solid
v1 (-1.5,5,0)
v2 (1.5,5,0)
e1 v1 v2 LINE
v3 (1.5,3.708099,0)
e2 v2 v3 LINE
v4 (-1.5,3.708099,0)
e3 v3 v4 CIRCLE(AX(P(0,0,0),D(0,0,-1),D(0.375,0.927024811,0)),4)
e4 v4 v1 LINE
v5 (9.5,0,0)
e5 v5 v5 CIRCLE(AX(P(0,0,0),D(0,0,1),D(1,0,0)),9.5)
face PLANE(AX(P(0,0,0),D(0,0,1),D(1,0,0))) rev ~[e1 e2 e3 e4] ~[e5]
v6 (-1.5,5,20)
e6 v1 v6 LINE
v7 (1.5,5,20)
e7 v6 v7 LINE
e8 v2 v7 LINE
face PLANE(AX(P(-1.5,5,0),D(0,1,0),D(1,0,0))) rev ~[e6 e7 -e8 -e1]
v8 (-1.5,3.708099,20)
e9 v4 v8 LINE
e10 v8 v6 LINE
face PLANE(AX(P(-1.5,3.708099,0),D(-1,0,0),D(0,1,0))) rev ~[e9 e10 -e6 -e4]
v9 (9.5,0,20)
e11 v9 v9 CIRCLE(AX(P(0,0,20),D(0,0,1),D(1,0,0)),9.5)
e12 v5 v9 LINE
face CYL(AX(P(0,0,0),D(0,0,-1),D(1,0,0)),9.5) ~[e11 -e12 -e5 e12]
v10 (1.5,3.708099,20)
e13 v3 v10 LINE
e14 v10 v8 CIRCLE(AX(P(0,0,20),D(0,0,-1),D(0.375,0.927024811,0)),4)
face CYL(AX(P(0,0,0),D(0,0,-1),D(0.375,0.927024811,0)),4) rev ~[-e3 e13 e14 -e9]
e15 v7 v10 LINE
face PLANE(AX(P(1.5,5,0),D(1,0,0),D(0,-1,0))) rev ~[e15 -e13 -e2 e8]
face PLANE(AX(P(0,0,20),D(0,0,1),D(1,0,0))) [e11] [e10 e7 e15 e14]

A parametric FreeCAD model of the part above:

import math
import FreeCAD as App
import Part
import Sketcher

V = App.Vector

doc = App.newDocument("Part")
params = doc.addObject("Spreadsheet::Sheet", "Params")
for row, (alias, value) in enumerate([
    ("sketch1_diameter", "19 mm"),
    ("sketch1_radius", "4 mm"),
    ("sketch1_width", "3 mm"),
    ("pad1_length", "20 mm"),
], start=1):
    params.set(f"A{row}", alias)
    params.set(f"B{row}", "=" + value)
    params.setAlias(f"B{row}", alias)

body = doc.addObject("PartDesign::Body", "Body")

# Sketch on XY plane
sketch1 = body.newObject("Sketcher::SketchObject", "Sketch")
sketch1.AttachmentSupport = (doc.getObject("XY_Plane"), [""])
sketch1.MapMode = "FlatFace"
sketch1.addGeometry([
    Part.Circle(V(0, 0, 0), V(0, 0, 1), 9.5),  # 0
    Part.ArcOfCircle(Part.Circle(V(0, 0, 0), V(0, 0, 1), 4), math.radians(112), math.radians(428)),  # 1
    Part.LineSegment(V(-1.5, 3.7, 0), V(-1.5, 5, 0)),  # 2
    Part.LineSegment(V(-1.5, 5, 0), V(1.5, 5, 0)),  # 3
    Part.LineSegment(V(1.5, 5, 0), V(1.5, 3.7, 0)),  # 4
], False)
sketch1.addConstraint([
    Sketcher.Constraint("Coincident", 1, 1, 2, 1),
    Sketcher.Constraint("Coincident", 2, 2, 3, 1),
    Sketcher.Constraint("Coincident", 3, 2, 4, 1),
    Sketcher.Constraint("Coincident", 4, 2, 1, 2),
    Sketcher.Constraint("Vertical", 2),
    Sketcher.Constraint("Horizontal", 3),
    Sketcher.Constraint("Vertical", 4),
    Sketcher.Constraint("Coincident", 0, 3, -1, 1),
    Sketcher.Constraint("Coincident", 1, 3, -1, 1),
    Sketcher.Constraint("Horizontal", 1, 1, 4, 2),
    Sketcher.Constraint("Diameter", 0, 19.0),
    Sketcher.Constraint("Radius", 1, 4.0),
    Sketcher.Constraint("DistanceX", 3, 1, 3, 2, 3.0),
    Sketcher.Constraint("DistanceY", -1, 1, 2, 2, 5.0),
])
sketch1.setExpression("Constraints[10]", "Params.sketch1_diameter")
sketch1.setExpression("Constraints[11]", "Params.sketch1_radius")
sketch1.setExpression("Constraints[12]", "Params.sketch1_width")
pad1 = body.newObject("PartDesign::Pad", "Pad")
pad1.Profile = sketch1
pad1.setExpression("Length", "Params.pad1_length")

doc.recompute()
